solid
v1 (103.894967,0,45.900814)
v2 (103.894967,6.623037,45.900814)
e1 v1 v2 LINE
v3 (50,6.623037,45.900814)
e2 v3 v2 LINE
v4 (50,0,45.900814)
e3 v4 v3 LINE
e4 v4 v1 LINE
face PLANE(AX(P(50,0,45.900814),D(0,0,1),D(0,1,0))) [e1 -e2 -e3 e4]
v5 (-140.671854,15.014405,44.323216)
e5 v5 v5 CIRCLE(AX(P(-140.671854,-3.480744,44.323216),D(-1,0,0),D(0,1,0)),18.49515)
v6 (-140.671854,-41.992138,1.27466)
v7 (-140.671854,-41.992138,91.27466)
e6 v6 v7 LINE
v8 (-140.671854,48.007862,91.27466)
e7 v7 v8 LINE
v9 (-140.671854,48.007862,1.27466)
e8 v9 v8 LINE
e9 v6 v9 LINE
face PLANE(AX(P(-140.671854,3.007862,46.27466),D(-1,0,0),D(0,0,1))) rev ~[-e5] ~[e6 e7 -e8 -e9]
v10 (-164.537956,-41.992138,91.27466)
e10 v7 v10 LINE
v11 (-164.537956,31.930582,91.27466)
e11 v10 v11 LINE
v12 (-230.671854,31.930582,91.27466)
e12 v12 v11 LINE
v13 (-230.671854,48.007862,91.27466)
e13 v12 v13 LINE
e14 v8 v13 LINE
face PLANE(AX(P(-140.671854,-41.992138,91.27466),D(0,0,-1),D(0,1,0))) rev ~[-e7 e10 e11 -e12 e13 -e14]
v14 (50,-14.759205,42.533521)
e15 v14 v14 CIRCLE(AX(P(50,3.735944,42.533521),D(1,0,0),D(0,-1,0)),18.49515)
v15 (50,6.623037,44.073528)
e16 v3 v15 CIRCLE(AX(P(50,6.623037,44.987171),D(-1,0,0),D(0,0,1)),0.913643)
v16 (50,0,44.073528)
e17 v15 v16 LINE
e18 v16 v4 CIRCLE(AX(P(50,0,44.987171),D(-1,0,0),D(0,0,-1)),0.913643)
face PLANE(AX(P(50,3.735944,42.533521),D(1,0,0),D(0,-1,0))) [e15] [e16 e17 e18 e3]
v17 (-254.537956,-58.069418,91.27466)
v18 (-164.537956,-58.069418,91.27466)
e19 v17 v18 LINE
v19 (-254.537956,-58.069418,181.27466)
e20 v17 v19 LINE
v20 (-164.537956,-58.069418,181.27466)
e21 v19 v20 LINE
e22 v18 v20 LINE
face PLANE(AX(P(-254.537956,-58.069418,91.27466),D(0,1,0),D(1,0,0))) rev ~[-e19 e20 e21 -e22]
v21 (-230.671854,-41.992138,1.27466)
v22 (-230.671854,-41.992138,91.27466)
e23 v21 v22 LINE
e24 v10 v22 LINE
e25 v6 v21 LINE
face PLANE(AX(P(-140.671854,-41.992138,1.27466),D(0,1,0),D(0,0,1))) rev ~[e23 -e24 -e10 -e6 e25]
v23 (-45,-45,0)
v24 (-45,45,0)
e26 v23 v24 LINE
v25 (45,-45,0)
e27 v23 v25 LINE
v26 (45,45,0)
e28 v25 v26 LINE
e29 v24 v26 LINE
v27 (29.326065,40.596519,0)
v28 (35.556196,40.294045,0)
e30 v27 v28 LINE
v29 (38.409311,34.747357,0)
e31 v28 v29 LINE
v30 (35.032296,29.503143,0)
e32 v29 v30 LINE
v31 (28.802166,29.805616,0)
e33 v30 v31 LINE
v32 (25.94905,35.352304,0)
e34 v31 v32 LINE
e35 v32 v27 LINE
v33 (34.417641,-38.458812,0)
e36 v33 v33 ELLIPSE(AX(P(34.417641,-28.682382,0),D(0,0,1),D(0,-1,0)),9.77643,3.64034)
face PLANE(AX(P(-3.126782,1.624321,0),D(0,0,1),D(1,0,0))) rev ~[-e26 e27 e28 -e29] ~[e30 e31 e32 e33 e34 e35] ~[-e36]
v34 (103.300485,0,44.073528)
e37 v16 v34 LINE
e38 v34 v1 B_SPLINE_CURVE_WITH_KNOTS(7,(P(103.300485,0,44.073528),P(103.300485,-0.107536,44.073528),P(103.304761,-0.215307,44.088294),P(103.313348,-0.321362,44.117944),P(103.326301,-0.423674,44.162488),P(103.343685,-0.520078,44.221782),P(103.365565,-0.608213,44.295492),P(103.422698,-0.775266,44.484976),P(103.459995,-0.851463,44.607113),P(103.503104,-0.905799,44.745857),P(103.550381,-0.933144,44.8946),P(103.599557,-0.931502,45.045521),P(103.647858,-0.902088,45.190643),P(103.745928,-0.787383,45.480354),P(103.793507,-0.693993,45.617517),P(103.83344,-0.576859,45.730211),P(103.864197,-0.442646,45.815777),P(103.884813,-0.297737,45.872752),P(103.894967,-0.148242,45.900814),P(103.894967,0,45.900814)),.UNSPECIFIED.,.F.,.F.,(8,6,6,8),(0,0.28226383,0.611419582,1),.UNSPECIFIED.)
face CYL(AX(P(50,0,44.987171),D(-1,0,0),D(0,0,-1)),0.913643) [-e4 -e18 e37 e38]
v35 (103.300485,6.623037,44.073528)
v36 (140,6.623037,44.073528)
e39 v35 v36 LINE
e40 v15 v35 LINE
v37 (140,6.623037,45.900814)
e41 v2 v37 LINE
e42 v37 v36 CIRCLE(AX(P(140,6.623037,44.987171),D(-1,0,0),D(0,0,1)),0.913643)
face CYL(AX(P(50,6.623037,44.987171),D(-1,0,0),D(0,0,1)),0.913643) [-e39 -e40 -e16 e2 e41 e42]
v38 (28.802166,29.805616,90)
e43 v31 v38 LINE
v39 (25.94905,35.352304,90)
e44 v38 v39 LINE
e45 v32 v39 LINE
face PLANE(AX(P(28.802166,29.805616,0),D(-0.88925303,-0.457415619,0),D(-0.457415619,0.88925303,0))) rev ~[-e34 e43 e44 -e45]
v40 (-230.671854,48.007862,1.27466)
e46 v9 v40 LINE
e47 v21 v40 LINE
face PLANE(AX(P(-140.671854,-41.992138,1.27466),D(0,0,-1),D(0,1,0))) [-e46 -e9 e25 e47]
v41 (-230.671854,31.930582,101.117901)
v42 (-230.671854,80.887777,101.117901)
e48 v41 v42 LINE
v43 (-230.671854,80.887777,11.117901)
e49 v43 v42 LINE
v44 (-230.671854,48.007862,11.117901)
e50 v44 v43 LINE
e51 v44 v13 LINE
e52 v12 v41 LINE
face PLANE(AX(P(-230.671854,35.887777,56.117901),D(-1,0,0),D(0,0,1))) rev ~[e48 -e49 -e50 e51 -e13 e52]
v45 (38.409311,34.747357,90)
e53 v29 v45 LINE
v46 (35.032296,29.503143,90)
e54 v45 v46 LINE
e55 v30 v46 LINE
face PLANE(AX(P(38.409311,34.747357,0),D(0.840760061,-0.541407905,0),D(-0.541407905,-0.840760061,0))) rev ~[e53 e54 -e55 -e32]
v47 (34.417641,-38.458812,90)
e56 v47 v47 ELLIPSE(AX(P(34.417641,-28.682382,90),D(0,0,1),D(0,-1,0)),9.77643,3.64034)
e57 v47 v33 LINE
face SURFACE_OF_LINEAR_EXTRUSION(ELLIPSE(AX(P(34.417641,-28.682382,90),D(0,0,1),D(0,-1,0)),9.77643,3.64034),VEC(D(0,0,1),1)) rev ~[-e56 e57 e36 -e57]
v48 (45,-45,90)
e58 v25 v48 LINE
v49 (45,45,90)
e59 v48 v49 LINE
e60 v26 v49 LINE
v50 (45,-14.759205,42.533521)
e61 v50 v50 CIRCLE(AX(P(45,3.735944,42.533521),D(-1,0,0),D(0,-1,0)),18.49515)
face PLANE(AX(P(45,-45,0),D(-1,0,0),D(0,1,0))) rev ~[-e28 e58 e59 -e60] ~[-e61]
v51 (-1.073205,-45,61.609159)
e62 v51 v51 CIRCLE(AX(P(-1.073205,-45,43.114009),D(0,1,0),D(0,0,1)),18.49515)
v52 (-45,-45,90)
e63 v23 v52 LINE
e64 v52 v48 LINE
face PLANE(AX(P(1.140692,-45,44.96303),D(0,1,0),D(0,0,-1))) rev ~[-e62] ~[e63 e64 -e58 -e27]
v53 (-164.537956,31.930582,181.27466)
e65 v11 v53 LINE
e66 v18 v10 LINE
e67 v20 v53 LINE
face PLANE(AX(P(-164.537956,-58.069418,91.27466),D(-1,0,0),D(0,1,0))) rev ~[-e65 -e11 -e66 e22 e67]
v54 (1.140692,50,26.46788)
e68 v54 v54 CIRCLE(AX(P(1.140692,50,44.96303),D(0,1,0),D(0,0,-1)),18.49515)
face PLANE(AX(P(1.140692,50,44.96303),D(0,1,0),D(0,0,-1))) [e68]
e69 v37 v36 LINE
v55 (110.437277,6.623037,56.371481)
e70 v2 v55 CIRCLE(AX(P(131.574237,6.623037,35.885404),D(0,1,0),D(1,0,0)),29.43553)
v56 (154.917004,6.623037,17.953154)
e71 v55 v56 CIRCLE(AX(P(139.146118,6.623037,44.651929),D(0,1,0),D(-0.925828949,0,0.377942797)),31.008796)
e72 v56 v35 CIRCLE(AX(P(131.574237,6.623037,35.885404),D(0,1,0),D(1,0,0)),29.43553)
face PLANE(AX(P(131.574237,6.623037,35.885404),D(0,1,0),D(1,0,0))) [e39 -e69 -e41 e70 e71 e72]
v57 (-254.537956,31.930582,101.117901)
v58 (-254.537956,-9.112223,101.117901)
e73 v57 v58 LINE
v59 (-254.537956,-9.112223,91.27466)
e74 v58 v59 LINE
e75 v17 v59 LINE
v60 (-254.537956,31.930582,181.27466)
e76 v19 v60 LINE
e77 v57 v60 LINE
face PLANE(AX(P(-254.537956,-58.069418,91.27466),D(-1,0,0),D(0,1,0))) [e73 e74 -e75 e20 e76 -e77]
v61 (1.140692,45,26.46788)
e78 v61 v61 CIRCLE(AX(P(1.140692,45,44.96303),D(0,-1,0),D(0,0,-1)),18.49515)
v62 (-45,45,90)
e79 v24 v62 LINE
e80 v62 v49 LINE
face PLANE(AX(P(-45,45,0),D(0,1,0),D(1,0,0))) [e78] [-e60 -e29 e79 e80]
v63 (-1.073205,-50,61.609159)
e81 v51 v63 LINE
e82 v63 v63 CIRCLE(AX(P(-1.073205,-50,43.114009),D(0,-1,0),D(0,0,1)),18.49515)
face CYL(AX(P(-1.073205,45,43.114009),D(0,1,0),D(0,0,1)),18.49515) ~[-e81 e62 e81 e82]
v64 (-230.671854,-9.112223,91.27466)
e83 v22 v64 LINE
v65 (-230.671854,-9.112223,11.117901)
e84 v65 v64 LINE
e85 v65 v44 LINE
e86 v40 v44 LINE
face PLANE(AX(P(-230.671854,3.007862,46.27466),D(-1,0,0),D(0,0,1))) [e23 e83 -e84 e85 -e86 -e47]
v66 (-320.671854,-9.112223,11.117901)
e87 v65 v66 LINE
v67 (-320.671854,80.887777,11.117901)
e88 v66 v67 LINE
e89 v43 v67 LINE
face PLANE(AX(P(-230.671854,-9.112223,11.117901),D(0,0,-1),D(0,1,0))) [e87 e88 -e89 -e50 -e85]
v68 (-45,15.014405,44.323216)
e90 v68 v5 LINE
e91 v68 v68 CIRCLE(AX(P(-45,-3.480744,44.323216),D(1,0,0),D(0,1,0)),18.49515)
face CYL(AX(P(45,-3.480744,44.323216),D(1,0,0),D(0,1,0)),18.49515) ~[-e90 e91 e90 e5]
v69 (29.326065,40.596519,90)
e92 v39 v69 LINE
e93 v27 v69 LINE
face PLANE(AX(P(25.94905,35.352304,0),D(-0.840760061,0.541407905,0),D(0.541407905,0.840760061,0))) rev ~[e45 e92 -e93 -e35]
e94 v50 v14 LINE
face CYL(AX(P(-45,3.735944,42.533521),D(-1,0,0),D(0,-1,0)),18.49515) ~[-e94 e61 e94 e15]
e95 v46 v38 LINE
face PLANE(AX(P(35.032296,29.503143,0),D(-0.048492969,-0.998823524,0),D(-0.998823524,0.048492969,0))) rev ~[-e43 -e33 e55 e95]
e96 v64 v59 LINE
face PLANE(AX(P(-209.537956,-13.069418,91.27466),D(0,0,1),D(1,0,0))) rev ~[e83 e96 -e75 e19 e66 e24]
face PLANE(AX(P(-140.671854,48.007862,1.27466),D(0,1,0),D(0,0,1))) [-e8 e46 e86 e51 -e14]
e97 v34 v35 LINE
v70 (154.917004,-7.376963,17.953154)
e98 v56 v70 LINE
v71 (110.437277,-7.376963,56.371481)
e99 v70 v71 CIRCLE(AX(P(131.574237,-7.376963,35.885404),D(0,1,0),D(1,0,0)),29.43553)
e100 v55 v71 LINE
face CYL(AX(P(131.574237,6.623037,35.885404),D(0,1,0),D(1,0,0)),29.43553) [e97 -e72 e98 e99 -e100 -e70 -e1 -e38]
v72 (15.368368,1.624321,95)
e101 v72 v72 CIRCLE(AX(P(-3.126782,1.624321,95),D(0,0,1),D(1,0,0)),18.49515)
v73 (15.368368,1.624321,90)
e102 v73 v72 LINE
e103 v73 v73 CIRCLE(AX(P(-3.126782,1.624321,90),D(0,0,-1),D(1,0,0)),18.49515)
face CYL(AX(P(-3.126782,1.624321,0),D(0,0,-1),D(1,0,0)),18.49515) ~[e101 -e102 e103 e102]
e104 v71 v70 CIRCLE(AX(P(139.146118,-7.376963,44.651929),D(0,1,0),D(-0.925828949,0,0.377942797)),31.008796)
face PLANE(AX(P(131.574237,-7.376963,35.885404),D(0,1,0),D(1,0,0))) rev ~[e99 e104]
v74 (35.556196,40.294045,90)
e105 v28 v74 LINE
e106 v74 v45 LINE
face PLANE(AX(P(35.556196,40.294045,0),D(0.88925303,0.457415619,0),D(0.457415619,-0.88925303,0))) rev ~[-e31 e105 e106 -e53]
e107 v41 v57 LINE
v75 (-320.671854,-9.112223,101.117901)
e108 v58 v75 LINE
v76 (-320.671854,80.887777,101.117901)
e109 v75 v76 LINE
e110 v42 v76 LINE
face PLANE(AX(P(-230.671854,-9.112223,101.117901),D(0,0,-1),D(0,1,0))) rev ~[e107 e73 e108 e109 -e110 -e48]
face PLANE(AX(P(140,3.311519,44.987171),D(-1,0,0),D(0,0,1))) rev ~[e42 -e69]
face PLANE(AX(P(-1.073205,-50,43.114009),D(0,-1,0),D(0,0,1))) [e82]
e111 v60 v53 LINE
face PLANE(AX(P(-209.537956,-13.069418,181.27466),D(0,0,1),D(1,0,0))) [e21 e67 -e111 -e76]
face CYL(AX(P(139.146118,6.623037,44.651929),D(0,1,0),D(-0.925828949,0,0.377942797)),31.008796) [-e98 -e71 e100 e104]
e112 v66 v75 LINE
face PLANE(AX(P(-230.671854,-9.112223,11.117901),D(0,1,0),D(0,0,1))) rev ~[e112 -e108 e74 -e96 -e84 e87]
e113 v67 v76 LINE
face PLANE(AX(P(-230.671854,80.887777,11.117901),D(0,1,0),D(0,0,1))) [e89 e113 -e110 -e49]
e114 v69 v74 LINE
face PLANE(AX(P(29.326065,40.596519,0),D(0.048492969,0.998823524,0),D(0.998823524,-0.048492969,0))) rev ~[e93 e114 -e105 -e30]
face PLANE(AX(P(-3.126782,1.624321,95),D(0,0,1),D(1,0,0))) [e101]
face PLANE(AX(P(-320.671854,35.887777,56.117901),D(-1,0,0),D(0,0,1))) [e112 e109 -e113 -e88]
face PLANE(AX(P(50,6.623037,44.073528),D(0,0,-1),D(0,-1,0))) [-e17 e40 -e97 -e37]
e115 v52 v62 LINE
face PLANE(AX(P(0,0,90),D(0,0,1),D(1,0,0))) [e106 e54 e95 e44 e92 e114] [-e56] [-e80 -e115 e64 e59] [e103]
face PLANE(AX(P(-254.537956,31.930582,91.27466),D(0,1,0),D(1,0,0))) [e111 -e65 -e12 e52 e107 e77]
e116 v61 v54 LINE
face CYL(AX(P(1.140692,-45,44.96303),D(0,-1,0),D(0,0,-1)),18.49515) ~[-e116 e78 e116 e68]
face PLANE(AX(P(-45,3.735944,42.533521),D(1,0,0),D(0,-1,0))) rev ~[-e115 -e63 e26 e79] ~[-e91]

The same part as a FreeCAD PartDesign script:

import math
import FreeCAD as App
import Part
import Sketcher
Q = App.Units.Quantity


def add_polygon(sketch, points):
    """Adds a closed chain of lines whose ends are joined by coincident constraints."""
    first, n = sketch.GeometryCount, len(points)
    for a, b in zip(points, points[1:] + points[:1]):
        sketch.addGeometry(Part.LineSegment(App.Vector(*a, 0), App.Vector(*b, 0)), False)
    for i in range(n):
        sketch.addConstraint(Sketcher.Constraint("Coincident", first + i, 2, first + (i + 1) % n, 1))

doc = App.newDocument("Part")
body = doc.addObject("PartDesign::Body", "Body")

sketch1 = body.newObject("Sketcher::SketchObject", "Sketch")
sketch1.AttachmentSupport = (doc.getObject("XY_Plane"), [""])
sketch1.MapMode = "FlatFace"
add_polygon(sketch1, [(-45, 45), (-45, -45), (45, -45), (45, 45)])
sketch1.addConstraint([
    Sketcher.Constraint("Vertical", 0),
    Sketcher.Constraint("Horizontal", 1),
    Sketcher.Constraint("Vertical", 2),
    Sketcher.Constraint("Horizontal", 3),
    Sketcher.Constraint("Symmetric", 0, 2, 2, 2, -1, 1),
    Sketcher.Constraint("Equal", 3, 0),
    Sketcher.Constraint("DistanceX", 1, 1, 1, 2, Q("90 mm")),
])
pad1 = body.newObject("PartDesign::Pad", "Pad")
pad1.Profile = sketch1
pad1.Length = 90

sketch2 = body.newObject("Sketcher::SketchObject", "Sketch001")
sketch2.AttachmentSupport = (doc.getObject("YZ_Plane"), [""])
sketch2.MapMode = "FlatFace"
sketch2.AttachmentOffset = App.Placement(App.Vector(0, 0, 45), App.Rotation())
sketch2.addGeometry(Part.Circle(App.Vector(4, 43, 0), App.Vector(0, 0, 1), 18), False)
sketch2.addConstraint([
    Sketcher.Constraint("Diameter", 0, Q("36.990299 mm")),
    Sketcher.Constraint("DistanceY", -1, 1, 0, 3, Q("42.533521 mm")),
    Sketcher.Constraint("DistanceX", -1, 1, 0, 3, Q("3.735944 mm")),
])
pad2 = body.newObject("PartDesign::Pad", "Pad001")
pad2.Profile = sketch2
pad2.Type = "TwoLengths"
pad2.Length = 5
pad2.Length2 = 90

sketch3 = body.newObject("Sketcher::SketchObject", "Sketch002")
sketch3.AttachmentSupport = (doc.getObject("XY_Plane"), [""])
sketch3.MapMode = "FlatFace"
sketch3.AttachmentOffset = App.Placement(App.Vector(0, 0, 90), App.Rotation())
sketch3.addGeometry(Part.Circle(App.Vector(-3, 2, 0), App.Vector(0, 0, 1), 18), False)
sketch3.addConstraint([
    Sketcher.Constraint("Diameter", 0, Q("36.990299 mm")),
    Sketcher.Constraint("DistanceX", 0, 3, -1, 1, Q("3.126782 mm")),
    Sketcher.Constraint("DistanceY", -1, 1, 0, 3, Q("1.624321 mm")),
])
pad3 = body.newObject("PartDesign::Pad", "Pad002")
pad3.Profile = sketch3
pad3.Type = "TwoLengths"
pad3.Length = 5
pad3.Length2 = 90

sketch4 = body.newObject("Sketcher::SketchObject", "Sketch003")
sketch4.AttachmentSupport = (doc.getObject("XZ_Plane"), [""])
sketch4.MapMode = "FlatFace"
sketch4.AttachmentOffset = App.Placement(App.Vector(0, 0, -45), App.Rotation())
sketch4.addGeometry(Part.Circle(App.Vector(1, 45, 0), App.Vector(0, 0, 1), 18), False)
sketch4.addConstraint([
    Sketcher.Constraint("Diameter", 0, Q("36.990299 mm")),
    Sketcher.Constraint("DistanceX", -1, 1, 0, 3, Q("1.140692 mm")),
    Sketcher.Constraint("DistanceY", -1, 1, 0, 3, Q("44.96303 mm")),
])
pad4 = body.newObject("PartDesign::Pad", "Pad003")
pad4.Profile = sketch4
pad4.Type = "TwoLengths"
pad4.Length = 5
pad4.Length2 = 90
pad4.Reversed = True

sketch5 = body.newObject("Sketcher::SketchObject", "Sketch004")
sketch5.AttachmentSupport = (doc.getObject("YZ_Plane"), [""])
sketch5.MapMode = "FlatFace"
sketch5.AttachmentOffset = App.Placement(App.Vector(0, 0, -45), App.Rotation())
sketch5.addGeometry(Part.Circle(App.Vector(-3, 44, 0), App.Vector(0, 0, 1), 18), False)
sketch5.addConstraint([
    Sketcher.Constraint("Diameter", 0, Q("36.990299 mm")),
    Sketcher.Constraint("DistanceX", 0, 3, -1, 1, Q("3.480744 mm")),
    Sketcher.Constraint("DistanceY", -1, 1, 0, 3, Q("44.323216 mm")),
])
pad5 = body.newObject("PartDesign::Pad", "Pad004")
pad5.Profile = sketch5
pad5.Type = "TwoLengths"
pad5.Length = 95.671854
pad5.Length2 = 90
pad5.Reversed = True

sketch6 = body.newObject("Sketcher::SketchObject", "Sketch005")
sketch6.AttachmentSupport = (doc.getObject("XZ_Plane"), [""])
sketch6.MapMode = "FlatFace"
sketch6.AttachmentOffset = App.Placement(App.Vector(0, 0, 45), App.Rotation())
sketch6.addGeometry(Part.Circle(App.Vector(-1, 43, 0), App.Vector(0, 0, 1), 18), False)
sketch6.addConstraint([
    Sketcher.Constraint("Diameter", 0, Q("36.990299 mm")),
    Sketcher.Constraint("DistanceY", -1, 1, 0, 3, Q("43.114009 mm")),
    Sketcher.Constraint("DistanceX", 0, 3, -1, 1, Q("1.073205 mm")),
])
pad6 = body.newObject("PartDesign::Pad", "Pad005")
pad6.Profile = sketch6
pad6.Type = "TwoLengths"
pad6.Length = 5
pad6.Length2 = 90

sketch7 = body.newObject("Sketcher::SketchObject", "Sketch006")
sketch7.AttachmentSupport = (doc.getObject("XY_Plane"), [""])
sketch7.MapMode = "FlatFace"
add_polygon(sketch7, [(29, 30), (26, 35), (29, 41), (36, 40), (38, 35), (35, 30)])
sketch7.addConstraint([
    Sketcher.Constraint("Parallel", 0, 3),
    Sketcher.Constraint("Parallel", 1, 4),
    Sketcher.Constraint("Parallel", 2, 5),
    Sketcher.Constraint("Equal", 0, 1),
    Sketcher.Constraint("Equal", 1, 2),
    Sketcher.Constraint("Equal", 2, 3),
    Sketcher.Constraint("DistanceX", 4, 2, 2, 2, Q("0.523899 mm")),
    Sketcher.Constraint("Distance", 0, Q("6.237469 mm")),
    Sketcher.Constraint("DistanceX", -1, 1, 0, 2, Q("25.94905 mm")),
    Sketcher.Constraint("DistanceY", -1, 1, 1, 2, Q("40.596519 mm")),
    Sketcher.Constraint("DistanceX", -1, 1, 3, 2, Q("38.409311 mm")),
    Sketcher.Constraint("DistanceX", 1, 2, 2, 2, Q("6.230131 mm")),
])
pocket1 = body.newObject("PartDesign::Pocket", "Pocket")
pocket1.Profile = sketch7
pocket1.Length = 90
pocket1.Reversed = True

sketch8 = body.newObject("Sketcher::SketchObject", "Sketch007")
sketch8.AttachmentSupport = (doc.getObject("XY_Plane"), [""])
sketch8.MapMode = "FlatFace"
sketch8.AttachmentOffset = App.Placement(App.Vector(0, 0, 90), App.Rotation())
sketch8.addGeometry(Part.Ellipse(App.Vector(34.417641, -38.458812, 0), App.Vector(38.057981, -28.682382, 0), App.Vector(34.417641, -28.682382, 0)), False)
sketch8.addConstraint(Sketcher.Constraint("Block", 0))
pocket2 = body.newObject("PartDesign::Pocket", "Pocket001")
pocket2.Profile = sketch8
pocket2.Length = 90

sketch9 = body.newObject("Sketcher::SketchObject", "Sketch008")
sketch9.AttachmentSupport = (doc.getObject("YZ_Plane"), [""])
sketch9.MapMode = "FlatFace"
sketch9.AttachmentOffset = App.Placement(App.Vector(0, 0, 50), App.Rotation())
sketch9.addGeometry([
    Part.LineSegment(App.Vector(0, 44.1, 0), App.Vector(6.6, 44.1, 0)),
    Part.ArcOfCircle(Part.Circle(App.Vector(6.6, 45, 0), App.Vector(0, 0, 1), 0.9), math.radians(-90), math.radians(90)),
    Part.LineSegment(App.Vector(6.6, 45.9, 0), App.Vector(0, 45.9, 0)),
    Part.ArcOfCircle(Part.Circle(App.Vector(0, 45, 0), App.Vector(0, 0, 1), 0.9), math.radians(90), math.radians(270)),
], False)
sketch9.addConstraint([
    Sketcher.Constraint("Tangent", 0, 2, 1, 1),
    Sketcher.Constraint("Tangent", 1, 2, 2, 1),
    Sketcher.Constraint("Tangent", 2, 2, 3, 1),
    Sketcher.Constraint("Tangent", 3, 2, 0, 1),
    Sketcher.Constraint("Horizontal", 0),
    Sketcher.Constraint("Horizontal", 2),
    Sketcher.Constraint("PointOnObject", 3, 3, -2),
    Sketcher.Constraint("Radius", 1, Q("0.913643 mm")),
    Sketcher.Constraint("DistanceX", 0, 1, 0, 2, Q("6.623037 mm")),
    Sketcher.Constraint("DistanceY", -1, 1, 1, 3, Q("44.987171 mm")),
])
pad7 = body.newObject("PartDesign::Pad", "Pad006")
pad7.Profile = sketch9
pad7.Length = 90

sketch10 = body.newObject("Sketcher::SketchObject", "Sketch009")
sketch10.AttachmentSupport = (doc.getObject("XZ_Plane"), [""])
sketch10.MapMode = "FlatFace"
sketch10.AttachmentOffset = App.Placement(App.Vector(0, 0, -6.623037), App.Rotation())
sketch10.addGeometry([
    Part.ArcOfCircle(Part.Circle(App.Vector(139, 45, 0), App.Vector(0, 0, 1), 31), math.radians(-59), math.radians(158)),
    Part.ArcOfCircle(Part.Circle(App.Vector(132, 36, 0), App.Vector(0, 0, 1), 29), math.radians(136), math.radians(322)),
], False)
sketch10.addConstraint([
    Sketcher.Constraint("Coincident", 0, 1, 1, 2),
    Sketcher.Constraint("Coincident", 1, 1, 0, 2),
    Sketcher.Constraint("Radius", 1, Q("29.43553 mm")),
    Sketcher.Constraint("Radius", 0, Q("31.008796 mm")),
    Sketcher.Constraint("DistanceY", -1, 1, 0, 3, Q("44.651929 mm")),
    Sketcher.Constraint("DistanceY", -1, 1, 1, 1, Q("56.371481 mm")),
    Sketcher.Constraint("DistanceX", 1, 3, 0, 3, Q("7.571881 mm")),
    Sketcher.Constraint("DistanceX", -1, 1, 0, 3, Q("139.146118 mm")),
])
pad8 = body.newObject("PartDesign::Pad", "Pad007")
pad8.Profile = sketch10
pad8.Length = 14

sketch11 = body.newObject("Sketcher::SketchObject", "Sketch010")
sketch11.AttachmentSupport = (doc.getObject("YZ_Plane"), [""])
sketch11.MapMode = "FlatFace"
sketch11.AttachmentOffset = App.Placement(App.Vector(0, 0, -140.671854), App.Rotation())
add_polygon(sketch11, [(48, 1), (-42, 1), (-42, 91), (48, 91)])
sketch11.addConstraint([
    Sketcher.Constraint("Horizontal", 0),
    Sketcher.Constraint("Vertical", 1),
    Sketcher.Constraint("Horizontal", 2),
    Sketcher.Constraint("Vertical", 3),
    Sketcher.Constraint("Equal", 2, 1),
    Sketcher.Constraint("DistanceX", 0, 2, 0, 1, Q("90 mm")),
    Sketcher.Constraint("DistanceY", -1, 1, 0, 2, Q("1.27466 mm")),
    Sketcher.Constraint("DistanceX", 0, 2, -1, 1, Q("41.992138 mm")),
])
pad9 = body.newObject("PartDesign::Pad", "Pad008")
pad9.Profile = sketch11
pad9.Length = 90
pad9.Reversed = True

sketch12 = body.newObject("Sketcher::SketchObject", "Sketch011")
sketch12.AttachmentSupport = (doc.getObject("XY_Plane"), [""])
sketch12.MapMode = "FlatFace"
sketch12.AttachmentOffset = App.Placement(App.Vector(0, 0, 91.27466), App.Rotation())
add_polygon(sketch12, [(-255, 32), (-255, -58), (-165, -58), (-165, 32)])
sketch12.addConstraint([
    Sketcher.Constraint("Vertical", 0),
    Sketcher.Constraint("Horizontal", 1),
    Sketcher.Constraint("Vertical", 2),
    Sketcher.Constraint("Horizontal", 3),
    Sketcher.Constraint("Equal", 3, 0),
    Sketcher.Constraint("DistanceX", 1, 1, 1, 2, Q("90 mm")),
    Sketcher.Constraint("DistanceX", 0, 2, -1, 1, Q("254.537956 mm")),
    Sketcher.Constraint("DistanceY", 0, 2, -1, 1, Q("58.069418 mm")),
])
pad10 = body.newObject("PartDesign::Pad", "Pad009")
pad10.Profile = sketch12
pad10.Length = 90

sketch13 = body.newObject("Sketcher::SketchObject", "Sketch012")
sketch13.AttachmentSupport = (doc.getObject("YZ_Plane"), [""])
sketch13.MapMode = "FlatFace"
sketch13.AttachmentOffset = App.Placement(App.Vector(0, 0, -230.671854), App.Rotation())
add_polygon(sketch13, [(81, 11), (-9, 11), (-9, 101), (81, 101)])
sketch13.addConstraint([
    Sketcher.Constraint("Horizontal", 0),
    Sketcher.Constraint("Vertical", 1),
    Sketcher.Constraint("Horizontal", 2),
    Sketcher.Constraint("Vertical", 3),
    Sketcher.Constraint("Equal", 2, 1),
    Sketcher.Constraint("DistanceX", 0, 2, 0, 1, Q("90 mm")),
    Sketcher.Constraint("DistanceY", -1, 1, 0, 2, Q("11.117901 mm")),
    Sketcher.Constraint("DistanceX", 0, 2, -1, 1, Q("9.112223 mm")),
])
pad11 = body.newObject("PartDesign::Pad", "Pad010")
pad11.Profile = sketch13
pad11.Length = 90
pad11.Reversed = True

doc.recompute()
